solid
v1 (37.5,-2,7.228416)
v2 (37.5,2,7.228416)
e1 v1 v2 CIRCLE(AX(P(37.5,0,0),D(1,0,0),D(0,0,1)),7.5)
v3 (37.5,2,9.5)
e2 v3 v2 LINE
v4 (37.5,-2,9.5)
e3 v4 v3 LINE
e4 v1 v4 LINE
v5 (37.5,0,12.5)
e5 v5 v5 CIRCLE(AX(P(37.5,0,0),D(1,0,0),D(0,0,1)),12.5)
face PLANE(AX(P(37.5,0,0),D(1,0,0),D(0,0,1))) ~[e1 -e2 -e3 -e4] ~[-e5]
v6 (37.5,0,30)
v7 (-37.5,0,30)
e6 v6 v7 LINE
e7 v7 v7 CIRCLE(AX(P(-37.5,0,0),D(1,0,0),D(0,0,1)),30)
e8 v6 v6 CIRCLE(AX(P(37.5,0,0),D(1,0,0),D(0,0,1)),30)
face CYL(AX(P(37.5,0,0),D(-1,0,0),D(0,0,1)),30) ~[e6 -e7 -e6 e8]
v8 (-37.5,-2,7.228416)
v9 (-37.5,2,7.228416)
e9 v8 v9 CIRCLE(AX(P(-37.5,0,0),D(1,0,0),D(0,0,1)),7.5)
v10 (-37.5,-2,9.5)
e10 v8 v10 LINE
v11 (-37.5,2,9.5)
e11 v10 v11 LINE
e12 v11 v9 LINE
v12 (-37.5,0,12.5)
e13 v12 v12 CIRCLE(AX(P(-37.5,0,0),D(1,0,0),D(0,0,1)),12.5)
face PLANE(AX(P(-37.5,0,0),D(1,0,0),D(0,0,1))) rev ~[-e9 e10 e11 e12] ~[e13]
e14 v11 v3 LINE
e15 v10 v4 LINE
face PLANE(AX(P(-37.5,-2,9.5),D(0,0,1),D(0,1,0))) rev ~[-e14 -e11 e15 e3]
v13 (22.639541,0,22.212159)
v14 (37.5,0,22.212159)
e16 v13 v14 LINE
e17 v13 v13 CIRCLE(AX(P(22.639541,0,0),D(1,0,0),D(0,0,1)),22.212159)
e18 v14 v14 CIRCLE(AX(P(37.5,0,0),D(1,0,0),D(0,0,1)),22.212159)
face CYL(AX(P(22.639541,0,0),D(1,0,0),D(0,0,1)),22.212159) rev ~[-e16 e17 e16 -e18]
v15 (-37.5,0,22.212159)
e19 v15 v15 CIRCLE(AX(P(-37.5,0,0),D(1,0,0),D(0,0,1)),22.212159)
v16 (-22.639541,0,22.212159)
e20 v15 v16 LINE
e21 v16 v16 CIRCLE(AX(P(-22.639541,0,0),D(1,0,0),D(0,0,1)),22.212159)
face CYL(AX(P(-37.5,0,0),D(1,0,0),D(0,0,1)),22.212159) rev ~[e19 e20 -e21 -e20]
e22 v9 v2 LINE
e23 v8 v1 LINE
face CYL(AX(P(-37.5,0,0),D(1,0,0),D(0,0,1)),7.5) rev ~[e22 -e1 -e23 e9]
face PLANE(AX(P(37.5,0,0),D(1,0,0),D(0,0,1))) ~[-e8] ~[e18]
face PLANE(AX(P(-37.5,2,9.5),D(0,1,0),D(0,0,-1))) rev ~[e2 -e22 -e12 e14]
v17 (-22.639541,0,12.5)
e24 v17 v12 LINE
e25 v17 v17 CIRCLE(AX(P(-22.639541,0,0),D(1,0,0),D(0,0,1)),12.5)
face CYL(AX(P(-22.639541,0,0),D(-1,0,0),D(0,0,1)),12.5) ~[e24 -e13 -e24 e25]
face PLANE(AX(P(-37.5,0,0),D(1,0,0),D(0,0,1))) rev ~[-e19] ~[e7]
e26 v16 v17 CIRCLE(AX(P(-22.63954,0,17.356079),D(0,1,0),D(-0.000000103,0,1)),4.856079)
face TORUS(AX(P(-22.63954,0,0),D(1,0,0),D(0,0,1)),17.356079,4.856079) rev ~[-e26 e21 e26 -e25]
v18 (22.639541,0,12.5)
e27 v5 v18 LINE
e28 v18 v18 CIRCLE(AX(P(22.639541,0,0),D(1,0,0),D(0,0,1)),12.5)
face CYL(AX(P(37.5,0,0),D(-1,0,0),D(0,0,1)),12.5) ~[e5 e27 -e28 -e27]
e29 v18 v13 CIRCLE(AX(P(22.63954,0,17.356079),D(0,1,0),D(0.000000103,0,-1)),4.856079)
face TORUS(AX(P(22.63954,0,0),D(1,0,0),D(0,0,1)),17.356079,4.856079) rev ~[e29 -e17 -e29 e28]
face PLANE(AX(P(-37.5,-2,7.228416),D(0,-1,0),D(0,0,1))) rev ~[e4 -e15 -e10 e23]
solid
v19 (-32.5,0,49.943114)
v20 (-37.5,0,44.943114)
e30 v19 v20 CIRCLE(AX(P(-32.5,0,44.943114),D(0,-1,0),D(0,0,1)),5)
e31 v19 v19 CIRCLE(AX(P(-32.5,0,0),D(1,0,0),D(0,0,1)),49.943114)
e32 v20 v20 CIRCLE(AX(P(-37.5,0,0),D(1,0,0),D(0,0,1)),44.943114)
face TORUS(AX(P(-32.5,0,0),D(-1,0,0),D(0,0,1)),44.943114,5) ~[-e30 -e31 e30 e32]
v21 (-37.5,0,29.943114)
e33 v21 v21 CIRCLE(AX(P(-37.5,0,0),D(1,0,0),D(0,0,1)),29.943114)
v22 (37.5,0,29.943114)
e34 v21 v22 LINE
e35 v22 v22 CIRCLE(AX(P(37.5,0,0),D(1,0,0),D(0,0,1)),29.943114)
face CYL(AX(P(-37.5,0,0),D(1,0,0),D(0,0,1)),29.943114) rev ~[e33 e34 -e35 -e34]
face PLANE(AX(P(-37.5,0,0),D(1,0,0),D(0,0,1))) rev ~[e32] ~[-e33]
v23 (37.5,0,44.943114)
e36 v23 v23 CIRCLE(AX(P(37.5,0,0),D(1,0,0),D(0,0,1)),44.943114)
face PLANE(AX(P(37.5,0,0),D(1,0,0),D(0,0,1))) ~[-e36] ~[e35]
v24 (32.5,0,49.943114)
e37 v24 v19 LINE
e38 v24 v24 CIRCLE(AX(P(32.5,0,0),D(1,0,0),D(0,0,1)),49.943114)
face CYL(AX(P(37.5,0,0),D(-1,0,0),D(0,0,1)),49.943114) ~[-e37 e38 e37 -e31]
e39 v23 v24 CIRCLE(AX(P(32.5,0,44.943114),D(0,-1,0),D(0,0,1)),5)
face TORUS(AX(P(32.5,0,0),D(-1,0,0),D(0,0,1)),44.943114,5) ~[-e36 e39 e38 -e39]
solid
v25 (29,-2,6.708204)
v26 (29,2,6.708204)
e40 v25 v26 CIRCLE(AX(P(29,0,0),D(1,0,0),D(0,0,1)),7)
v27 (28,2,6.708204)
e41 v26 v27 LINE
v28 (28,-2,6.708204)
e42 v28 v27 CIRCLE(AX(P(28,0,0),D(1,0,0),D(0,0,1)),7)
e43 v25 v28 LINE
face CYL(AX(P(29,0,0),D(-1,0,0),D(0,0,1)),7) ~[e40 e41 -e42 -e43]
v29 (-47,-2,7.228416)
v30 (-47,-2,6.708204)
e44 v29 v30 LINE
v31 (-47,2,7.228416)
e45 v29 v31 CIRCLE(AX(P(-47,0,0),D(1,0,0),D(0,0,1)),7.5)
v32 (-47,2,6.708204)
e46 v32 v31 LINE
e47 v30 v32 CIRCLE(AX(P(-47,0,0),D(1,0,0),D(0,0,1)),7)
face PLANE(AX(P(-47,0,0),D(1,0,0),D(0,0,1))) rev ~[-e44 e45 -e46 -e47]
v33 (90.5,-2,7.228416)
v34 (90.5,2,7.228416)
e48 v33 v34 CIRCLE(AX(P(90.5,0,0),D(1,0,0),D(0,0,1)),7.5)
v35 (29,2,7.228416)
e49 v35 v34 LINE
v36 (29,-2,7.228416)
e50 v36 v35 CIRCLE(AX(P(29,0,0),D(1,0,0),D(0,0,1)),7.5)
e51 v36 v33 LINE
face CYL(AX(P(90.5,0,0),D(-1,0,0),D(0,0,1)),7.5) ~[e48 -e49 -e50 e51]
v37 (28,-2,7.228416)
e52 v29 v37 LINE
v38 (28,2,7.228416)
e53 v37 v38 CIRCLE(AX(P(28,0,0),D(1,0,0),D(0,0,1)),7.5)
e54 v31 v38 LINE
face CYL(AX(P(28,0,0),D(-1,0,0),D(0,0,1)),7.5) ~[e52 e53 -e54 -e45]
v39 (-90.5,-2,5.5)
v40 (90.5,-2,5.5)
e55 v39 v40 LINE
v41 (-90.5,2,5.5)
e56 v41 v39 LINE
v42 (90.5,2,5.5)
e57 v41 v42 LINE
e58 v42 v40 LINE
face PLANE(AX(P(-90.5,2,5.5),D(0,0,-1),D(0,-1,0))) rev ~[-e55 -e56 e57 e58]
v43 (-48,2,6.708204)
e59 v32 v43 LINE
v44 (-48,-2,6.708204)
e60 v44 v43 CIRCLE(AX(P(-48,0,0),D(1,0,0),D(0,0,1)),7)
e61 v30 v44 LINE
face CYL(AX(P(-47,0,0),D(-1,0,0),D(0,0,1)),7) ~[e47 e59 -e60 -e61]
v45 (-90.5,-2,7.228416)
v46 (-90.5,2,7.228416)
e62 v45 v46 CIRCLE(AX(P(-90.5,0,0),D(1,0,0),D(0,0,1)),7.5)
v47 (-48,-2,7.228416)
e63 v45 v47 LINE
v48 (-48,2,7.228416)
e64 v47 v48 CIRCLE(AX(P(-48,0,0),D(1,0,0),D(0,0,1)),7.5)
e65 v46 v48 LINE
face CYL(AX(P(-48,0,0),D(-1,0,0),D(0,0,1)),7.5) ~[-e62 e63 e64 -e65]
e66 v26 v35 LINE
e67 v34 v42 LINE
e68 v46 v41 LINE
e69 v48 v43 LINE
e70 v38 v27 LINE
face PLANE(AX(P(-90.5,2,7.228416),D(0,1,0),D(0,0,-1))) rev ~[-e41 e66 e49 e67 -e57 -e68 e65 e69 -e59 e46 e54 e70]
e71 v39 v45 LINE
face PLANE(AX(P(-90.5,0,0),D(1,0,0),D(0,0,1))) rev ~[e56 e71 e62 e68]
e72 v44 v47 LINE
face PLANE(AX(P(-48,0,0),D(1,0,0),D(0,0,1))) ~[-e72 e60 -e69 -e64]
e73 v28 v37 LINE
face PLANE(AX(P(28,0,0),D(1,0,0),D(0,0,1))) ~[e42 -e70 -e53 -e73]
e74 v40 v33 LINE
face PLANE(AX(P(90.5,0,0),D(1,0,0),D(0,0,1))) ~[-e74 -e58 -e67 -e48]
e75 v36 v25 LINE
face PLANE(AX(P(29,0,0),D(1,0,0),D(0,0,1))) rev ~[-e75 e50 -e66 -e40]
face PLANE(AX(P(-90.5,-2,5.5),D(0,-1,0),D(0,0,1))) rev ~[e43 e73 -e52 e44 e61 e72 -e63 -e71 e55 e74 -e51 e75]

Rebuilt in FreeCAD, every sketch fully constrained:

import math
import FreeCAD as App
import Part
import Sketcher
from FreeCAD import Vector
Q = App.Units.Quantity


def edges_at(feature, points):
    """Names of the edges that pass closest to the given points."""
    edges = feature.Shape.Edges
    near = lambda p: min(range(len(edges)), key=lambda i: edges[i].distToShape(Part.Vertex(*p))[0])
    return sorted({f"Edge{near(p) + 1}" for p in points})

doc = App.newDocument("Part")
body = doc.addObject("PartDesign::Body", "Body")

sketch1 = body.newObject("Sketcher::SketchObject", "Sketch")
sketch1.AttachmentSupport = (doc.getObject("XZ_Plane"), [""])
sketch1.MapMode = "FlatFace"
sketch1.addGeometry([
    Part.LineSegment(Vector(-90.5, 7.5, 0), Vector(-90.5, 0, 0)),
    Part.LineSegment(Vector(-90.5, 0, 0), Vector(90.5, 0, 0)),
    Part.LineSegment(Vector(90.5, 0, 0), Vector(90.5, 7.5, 0)),
    Part.LineSegment(Vector(90.5, 7.5, 0), Vector(29, 7.5, 0)),
    Part.LineSegment(Vector(29, 7.5, 0), Vector(29, 7, 0)),
    Part.LineSegment(Vector(29, 7, 0), Vector(28, 7, 0)),
    Part.LineSegment(Vector(28, 7, 0), Vector(28, 7.5, 0)),
    Part.LineSegment(Vector(28, 7.5, 0), Vector(-47, 7.5, 0)),
    Part.LineSegment(Vector(-47, 7.5, 0), Vector(-47, 7, 0)),
    Part.LineSegment(Vector(-47, 7, 0), Vector(-48, 7, 0)),
    Part.LineSegment(Vector(-48, 7, 0), Vector(-48, 7.5, 0)),
    Part.LineSegment(Vector(-48, 7.5, 0), Vector(-90.5, 7.5, 0)),
], False)
sketch1.addConstraint([
    Sketcher.Constraint("Coincident", 0, 2, 1, 1),
    Sketcher.Constraint("Coincident", 1, 2, 2, 1),
    Sketcher.Constraint("Coincident", 2, 2, 3, 1),
    Sketcher.Constraint("Coincident", 3, 2, 4, 1),
    Sketcher.Constraint("Coincident", 4, 2, 5, 1),
    Sketcher.Constraint("Coincident", 5, 2, 6, 1),
    Sketcher.Constraint("Coincident", 6, 2, 7, 1),
    Sketcher.Constraint("Coincident", 7, 2, 8, 1),
    Sketcher.Constraint("Coincident", 8, 2, 9, 1),
    Sketcher.Constraint("Coincident", 9, 2, 10, 1),
    Sketcher.Constraint("Coincident", 10, 2, 11, 1),
    Sketcher.Constraint("Coincident", 11, 2, 0, 1),
    Sketcher.Constraint("Vertical", 0),
    Sketcher.Constraint("Horizontal", 1),
    Sketcher.Constraint("Vertical", 2),
    Sketcher.Constraint("Horizontal", 3),
    Sketcher.Constraint("Vertical", 4),
    Sketcher.Constraint("Horizontal", 5),
    Sketcher.Constraint("Vertical", 6),
    Sketcher.Constraint("Horizontal", 7),
    Sketcher.Constraint("Vertical", 8),
    Sketcher.Constraint("Horizontal", 9),
    Sketcher.Constraint("Vertical", 10),
    Sketcher.Constraint("Horizontal", 11),
    Sketcher.Constraint("Symmetric", 0, 2, 1, 2, -1, 1),
    Sketcher.Constraint("Horizontal", 3, 2, 6, 2),
    Sketcher.Constraint("Horizontal", 5, 2, 8, 2),
    Sketcher.Constraint("Horizontal", 7, 2, 10, 2),
    Sketcher.Constraint("Equal", 5, 9),
    Sketcher.Constraint("DistanceX", 1, 1, 1, 2, Q("181 mm")),
    Sketcher.Constraint("DistanceX", 5, 2, 5, 1, Q("1 mm")),
    Sketcher.Constraint("DistanceX", 7, 2, 7, 1, Q("75 mm")),
    Sketcher.Constraint("DistanceX", 3, 2, 3, 1, Q("61.5 mm")),
    Sketcher.Constraint("DistanceY", 0, 2, 0, 1, Q("7.5 mm")),
    Sketcher.Constraint("DistanceY", 4, 2, 4, 1, Q("0.5 mm")),
])
revolution = body.newObject("PartDesign::Revolution", "Revolution")
revolution.Profile = sketch1
revolution.ReferenceAxis = (sketch1, ["H_Axis"])
revolution.Angle = 360

sketch2 = body.newObject("Sketcher::SketchObject", "Sketch001")
sketch2.AttachmentSupport = (doc.getObject("YZ_Plane"), [""])
sketch2.MapMode = "FlatFace"
sketch2.AttachmentOffset = App.Placement(Vector(0, 0, -90.5), App.Rotation())
sketch2.addGeometry([
    Part.ArcOfCircle(Part.Circle(Vector(0, 0, 0), Vector(0, 0, 1), 7.5), math.radians(75), math.radians(105)),
    Part.LineSegment(Vector(2, 7.2, 0), Vector(2, 5.5, 0)),
    Part.LineSegment(Vector(2, 5.5, 0), Vector(-2, 5.5, 0)),
    Part.LineSegment(Vector(-2, 5.5, 0), Vector(-2, 7.2, 0)),
], False)
sketch2.addConstraint([
    Sketcher.Constraint("Coincident", 0, 1, 1, 1),
    Sketcher.Constraint("Coincident", 1, 2, 2, 1),
    Sketcher.Constraint("Coincident", 2, 2, 3, 1),
    Sketcher.Constraint("Coincident", 3, 2, 0, 2),
    Sketcher.Constraint("Vertical", 1),
    Sketcher.Constraint("Horizontal", 2),
    Sketcher.Constraint("Vertical", 3),
    Sketcher.Constraint("Coincident", 0, 3, -1, 1),
    Sketcher.Constraint("Horizontal", 0, 1, 3, 2),
    Sketcher.Constraint("DistanceX", 2, 2, 2, 1, Q("4 mm")),
    Sketcher.Constraint("DistanceY", -1, 1, 1, 2, Q("5.5 mm")),
    Sketcher.Constraint("Radius", 0, Q("7.499996 mm")),
])
pocket1 = body.newObject("PartDesign::Pocket", "Pocket")
pocket1.Profile = sketch2
pocket1.Type = "ThroughAll"
pocket1.Reversed = True
body2 = doc.addObject("PartDesign::Body", "Body001")

sketch3 = body2.newObject("Sketcher::SketchObject", "Sketch002")
sketch3.AttachmentSupport = (doc.getObject("XZ_Plane001"), [""])
sketch3.MapMode = "FlatFace"
sketch3.addGeometry([
    Part.LineSegment(Vector(-37.5, 7.5, 0), Vector(37.5, 7.5, 0)),
    Part.LineSegment(Vector(37.5, 7.5, 0), Vector(37.5, 12.5, 0)),
    Part.LineSegment(Vector(37.5, 12.5, 0), Vector(22.6, 12.5, 0)),
    Part.ArcOfCircle(Part.Circle(Vector(22.6, 17.4, 0), Vector(0, 0, 1), 4.9), math.radians(90), math.radians(270)),
    Part.LineSegment(Vector(22.6, 22.2, 0), Vector(37.5, 22.2, 0)),
    Part.LineSegment(Vector(37.5, 22.2, 0), Vector(37.5, 30, 0)),
    Part.LineSegment(Vector(37.5, 30, 0), Vector(-37.5, 30, 0)),
    Part.LineSegment(Vector(-37.5, 30, 0), Vector(-37.5, 22.2, 0)),
    Part.LineSegment(Vector(-37.5, 22.2, 0), Vector(-22.6, 22.2, 0)),
    Part.ArcOfCircle(Part.Circle(Vector(-22.6, 17.4, 0), Vector(0, 0, 1), 4.9), math.radians(-90), math.radians(90)),
    Part.LineSegment(Vector(-22.6, 12.5, 0), Vector(-37.5, 12.5, 0)),
    Part.LineSegment(Vector(-37.5, 12.5, 0), Vector(-37.5, 7.5, 0)),
], False)
sketch3.addConstraint([
    Sketcher.Constraint("Coincident", 0, 2, 1, 1),
    Sketcher.Constraint("Coincident", 1, 2, 2, 1),
    Sketcher.Constraint("Tangent", 2, 2, 3, 2),
    Sketcher.Constraint("Tangent", 3, 1, 4, 1),
    Sketcher.Constraint("Coincident", 4, 2, 5, 1),
    Sketcher.Constraint("Coincident", 5, 2, 6, 1),
    Sketcher.Constraint("Coincident", 6, 2, 7, 1),
    Sketcher.Constraint("Coincident", 7, 2, 8, 1),
    Sketcher.Constraint("Tangent", 8, 2, 9, 2),
    Sketcher.Constraint("Tangent", 9, 1, 10, 1),
    Sketcher.Constraint("Coincident", 10, 2, 11, 1),
    Sketcher.Constraint("Coincident", 11, 2, 0, 1),
    Sketcher.Constraint("Horizontal", 0),
    Sketcher.Constraint("Vertical", 1),
    Sketcher.Constraint("Horizontal", 2),
    Sketcher.Constraint("Horizontal", 4),
    Sketcher.Constraint("Vertical", 5),
    Sketcher.Constraint("Horizontal", 6),
    Sketcher.Constraint("Vertical", 7),
    Sketcher.Constraint("Horizontal", 8),
    Sketcher.Constraint("Horizontal", 10),
    Sketcher.Constraint("Vertical", 11),
    Sketcher.Constraint("Equal", 3, 9),
    Sketcher.Constraint("Symmetric", 3, 3, 9, 3, -2),
    Sketcher.Constraint("Vertical", 1, 2, 4, 2),
    Sketcher.Constraint("Vertical", 7, 2, 10, 2),
    Sketcher.Constraint("Equal", 4, 8),
    Sketcher.Constraint("DistanceX", 0, 1, 0, 2, Q("75 mm")),
    Sketcher.Constraint("DistanceY", 1, 1, 1, 2, Q("5 mm")),
    Sketcher.Constraint("DistanceY", -1, 1, 5, 2, Q("30 mm")),
    Sketcher.Constraint("DistanceY", -1, 1, 0, 2, Q("7.5 mm")),
    Sketcher.Constraint("Radius", 3, Q("4.856079 mm")),
    Sketcher.Constraint("DistanceX", 2, 2, 2, 1, Q("14.860459 mm")),
])
revolution2 = body2.newObject("PartDesign::Revolution", "Revolution001")
revolution2.Profile = sketch3
revolution2.ReferenceAxis = (sketch3, ["H_Axis"])
revolution2.Angle = 360

sketch4 = body2.newObject("Sketcher::SketchObject", "Sketch003")
sketch4.AttachmentSupport = (doc.getObject("YZ_Plane001"), [""])
sketch4.MapMode = "FlatFace"
sketch4.AttachmentOffset = App.Placement(Vector(0, 0, -37.5), App.Rotation())
sketch4.addGeometry([
    Part.LineSegment(Vector(-2, 9.5, 0), Vector(2, 9.5, 0)),
    Part.LineSegment(Vector(2, 9.5, 0), Vector(2, 7.2, 0)),
    Part.ArcOfCircle(Part.Circle(Vector(0, 0, 0), Vector(0, 0, 1), 7.5), math.radians(75), math.radians(105)),
    Part.LineSegment(Vector(-2, 7.2, 0), Vector(-2, 9.5, 0)),
], False)
sketch4.addConstraint([
    Sketcher.Constraint("Coincident", 0, 2, 1, 1),
    Sketcher.Constraint("Coincident", 1, 2, 2, 1),
    Sketcher.Constraint("Coincident", 2, 2, 3, 1),
    Sketcher.Constraint("Coincident", 3, 2, 0, 1),
    Sketcher.Constraint("Horizontal", 0),
    Sketcher.Constraint("Vertical", 1),
    Sketcher.Constraint("Vertical", 3),
    Sketcher.Constraint("Coincident", 2, 3, -1, 1),
    Sketcher.Constraint("Horizontal", 1, 2, 2, 2),
    Sketcher.Constraint("DistanceX", 0, 1, 0, 2, Q("4 mm")),
    Sketcher.Constraint("DistanceY", -1, 1, 0, 2, Q("9.5 mm")),
    Sketcher.Constraint("Radius", 2, Q("7.499996 mm")),
])
pocket2 = body2.newObject("PartDesign::Pocket", "Pocket001")
pocket2.Profile = sketch4
pocket2.Type = "ThroughAll"
pocket2.Reversed = True
body3 = doc.addObject("PartDesign::Body", "Body002")

sketch5 = body3.newObject("Sketcher::SketchObject", "Sketch004")
sketch5.AttachmentSupport = (doc.getObject("XZ_Plane002"), [""])
sketch5.MapMode = "FlatFace"
sketch5.addGeometry([
    Part.LineSegment(Vector(-38, 30, 0), Vector(38, 30, 0)),
    Part.LineSegment(Vector(38, 30, 0), Vector(38, 50, 0)),
    Part.LineSegment(Vector(38, 50, 0), Vector(-38, 50, 0)),
    Part.LineSegment(Vector(-38, 50, 0), Vector(-38, 30, 0)),
], False)
sketch5.addConstraint([
    Sketcher.Constraint("Coincident", 0, 2, 1, 1),
    Sketcher.Constraint("Coincident", 1, 2, 2, 1),
    Sketcher.Constraint("Coincident", 2, 2, 3, 1),
    Sketcher.Constraint("Coincident", 3, 2, 0, 1),
    Sketcher.Constraint("Horizontal", 0),
    Sketcher.Constraint("Vertical", 1),
    Sketcher.Constraint("Horizontal", 2),
    Sketcher.Constraint("Vertical", 3),
    Sketcher.Constraint("DistanceX", 0, 1, 0, 2, Q("75 mm")),
    Sketcher.Constraint("DistanceY", 1, 1, 1, 2, Q("20 mm")),
    Sketcher.Constraint("DistanceX", -1, 1, 0, 2, Q("37.5 mm")),
    Sketcher.Constraint("DistanceY", -1, 1, 0, 2, Q("29.943114 mm")),
])
revolution3 = body3.newObject("PartDesign::Revolution", "Revolution002")
revolution3.Profile = sketch5
revolution3.ReferenceAxis = (sketch5, ["H_Axis"])
revolution3.Angle = 360
doc.recompute()

fillet = body3.newObject("PartDesign::Fillet", "Fillet")
fillet.Base = (revolution3, edges_at(revolution3, [(-37.5, 0, -49.943), (37.5, 0, -49.943)]))
fillet.Radius = 5

doc.recompute()
